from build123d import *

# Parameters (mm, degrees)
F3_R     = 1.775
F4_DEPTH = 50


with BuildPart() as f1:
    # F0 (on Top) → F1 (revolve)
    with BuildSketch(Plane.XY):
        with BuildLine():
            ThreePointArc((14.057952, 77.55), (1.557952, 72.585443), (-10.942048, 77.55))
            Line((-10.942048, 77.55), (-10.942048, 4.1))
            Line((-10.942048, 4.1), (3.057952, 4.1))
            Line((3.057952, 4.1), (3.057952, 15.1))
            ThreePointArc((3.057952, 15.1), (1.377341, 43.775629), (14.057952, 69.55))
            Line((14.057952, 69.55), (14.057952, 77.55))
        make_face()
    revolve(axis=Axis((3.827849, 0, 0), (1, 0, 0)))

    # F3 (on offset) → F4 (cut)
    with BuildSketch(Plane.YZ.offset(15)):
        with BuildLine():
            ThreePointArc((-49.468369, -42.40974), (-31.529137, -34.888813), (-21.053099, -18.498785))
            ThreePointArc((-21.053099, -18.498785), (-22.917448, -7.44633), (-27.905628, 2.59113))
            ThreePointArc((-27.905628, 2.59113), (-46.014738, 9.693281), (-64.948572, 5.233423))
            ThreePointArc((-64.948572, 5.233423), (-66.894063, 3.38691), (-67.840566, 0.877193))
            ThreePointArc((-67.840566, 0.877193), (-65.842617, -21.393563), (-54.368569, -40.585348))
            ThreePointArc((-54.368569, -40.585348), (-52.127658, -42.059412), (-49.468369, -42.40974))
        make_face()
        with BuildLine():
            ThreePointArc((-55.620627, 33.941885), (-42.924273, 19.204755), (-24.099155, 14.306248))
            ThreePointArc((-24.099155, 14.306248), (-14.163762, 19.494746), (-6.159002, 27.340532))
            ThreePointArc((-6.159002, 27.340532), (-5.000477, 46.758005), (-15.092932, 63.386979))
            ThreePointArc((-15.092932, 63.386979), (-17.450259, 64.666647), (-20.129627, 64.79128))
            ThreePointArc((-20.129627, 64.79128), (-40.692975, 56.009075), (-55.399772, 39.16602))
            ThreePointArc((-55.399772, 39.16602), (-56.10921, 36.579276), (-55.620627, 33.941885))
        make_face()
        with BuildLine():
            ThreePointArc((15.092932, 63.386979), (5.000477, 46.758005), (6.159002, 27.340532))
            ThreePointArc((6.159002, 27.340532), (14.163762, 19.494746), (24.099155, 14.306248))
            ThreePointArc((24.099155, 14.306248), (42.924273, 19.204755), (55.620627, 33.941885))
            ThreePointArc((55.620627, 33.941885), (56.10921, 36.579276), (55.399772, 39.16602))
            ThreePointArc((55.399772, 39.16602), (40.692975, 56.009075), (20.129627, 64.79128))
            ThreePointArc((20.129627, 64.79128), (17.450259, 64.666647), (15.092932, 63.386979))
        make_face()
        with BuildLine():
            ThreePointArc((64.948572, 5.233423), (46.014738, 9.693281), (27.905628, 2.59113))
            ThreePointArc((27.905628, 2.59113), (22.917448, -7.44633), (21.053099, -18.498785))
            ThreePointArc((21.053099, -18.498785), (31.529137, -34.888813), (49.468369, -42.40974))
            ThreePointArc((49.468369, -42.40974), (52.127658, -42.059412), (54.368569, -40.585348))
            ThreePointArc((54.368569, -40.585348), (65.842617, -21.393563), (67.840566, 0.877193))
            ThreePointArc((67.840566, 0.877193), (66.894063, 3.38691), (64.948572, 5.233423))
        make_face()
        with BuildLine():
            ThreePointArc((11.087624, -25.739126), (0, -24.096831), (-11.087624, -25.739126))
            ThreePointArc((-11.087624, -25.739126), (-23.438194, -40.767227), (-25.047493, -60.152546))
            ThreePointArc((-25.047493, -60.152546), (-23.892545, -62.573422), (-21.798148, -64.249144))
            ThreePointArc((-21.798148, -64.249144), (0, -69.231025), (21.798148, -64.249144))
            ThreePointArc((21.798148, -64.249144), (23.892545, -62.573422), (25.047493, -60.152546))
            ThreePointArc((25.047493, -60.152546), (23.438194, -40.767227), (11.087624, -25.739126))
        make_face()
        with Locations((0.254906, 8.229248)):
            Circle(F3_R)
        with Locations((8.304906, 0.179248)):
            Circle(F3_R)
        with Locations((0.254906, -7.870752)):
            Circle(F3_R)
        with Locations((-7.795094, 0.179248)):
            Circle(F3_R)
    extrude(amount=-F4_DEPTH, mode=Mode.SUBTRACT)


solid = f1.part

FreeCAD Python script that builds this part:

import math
import FreeCAD as App
import Part
import Sketcher

doc = App.newDocument("Part")
body = doc.addObject("PartDesign::Body", "Body")

# Sketch on XY plane
sketch1 = body.newObject("Sketcher::SketchObject", "Sketch")
sketch1.AttachmentSupport = (doc.getObject("XY_Plane"), [""])
sketch1.MapMode = "FlatFace"
sketch1.addGeometry([
    Part.ArcOfCircle(Part.Circle(App.Vector(1.557952, 90.804272, 0), App.Vector(0, 0, 1), 18.218829), math.radians(-133.322444), math.radians(-46.677556)),  # 0
    Part.LineSegment(App.Vector(-10.942048, 77.55, 0), App.Vector(-10.942048, 4.1, 0)),  # 1
    Part.LineSegment(App.Vector(-10.942048, 4.1, 0), App.Vector(3.057952, 4.1, 0)),  # 2
    Part.LineSegment(App.Vector(3.057952, 4.1, 0), App.Vector(3.057952, 15.1, 0)),  # 3
    Part.ArcOfCircle(Part.Circle(App.Vector(56.578896, 32.623799, 0), App.Vector(0, 0, 1), 56.316738), math.radians(139.028173), math.radians(198.129454)),  # 4
    Part.LineSegment(App.Vector(14.057952, 69.55, 0), App.Vector(14.057952, 77.55, 0)),  # 5
], False)
sketch1.addConstraint([
    Sketcher.Constraint("Coincident", 0, 1, 1, 1),
    Sketcher.Constraint("Coincident", 1, 2, 2, 1),
    Sketcher.Constraint("Coincident", 2, 2, 3, 1),
    Sketcher.Constraint("Coincident", 3, 2, 4, 2),
    Sketcher.Constraint("Coincident", 4, 1, 5, 1),
    Sketcher.Constraint("Coincident", 5, 2, 0, 2),
    Sketcher.Constraint("Vertical", 1),
    Sketcher.Constraint("Horizontal", 2),
    Sketcher.Constraint("Vertical", 3),
    Sketcher.Constraint("Vertical", 5),
    Sketcher.Constraint("Horizontal", 0, 1, 5, 2),
    Sketcher.Constraint("DistanceX", 2, 1, 2, 2, 14.0),
    Sketcher.Constraint("DistanceY", 3, 1, 3, 2, 11.0),
    Sketcher.Constraint("DistanceY", 5, 1, 5, 2, 8.0),
    Sketcher.Constraint("DistanceX", 0, 1, 4, 1, 25.0),
    Sketcher.Constraint("DistanceY", 1, 2, 1, 1, 73.45),
    Sketcher.Constraint("DistanceY", -1, 1, 1, 2, 4.1),
    Sketcher.Constraint("Radius", 0, 18.218829),
    Sketcher.Constraint("Radius", 4, 56.316738),
    Sketcher.Constraint("DistanceX", -1, 1, 2, 2, 3.057952),
])
revolution = body.newObject("PartDesign::Revolution", "Revolution")
revolution.Profile = sketch1
revolution.ReferenceAxis = (sketch1, ["H_Axis"])
revolution.Angle = 360

# Sketch on YZ plane
sketch2 = body.newObject("Sketcher::SketchObject", "Sketch001")
sketch2.AttachmentSupport = (doc.getObject("YZ_Plane"), [""])
sketch2.MapMode = "FlatFace"
sketch2.AttachmentOffset = App.Placement(App.Vector(0, 0, 15), App.Rotation())
sketch2.addGeometry([
    Part.ArcOfCircle(Part.Circle(App.Vector(-52.546714, -9.911971, 0), App.Vector(0, 0, 1), 32.643241), math.radians(-84.588813), math.radians(-15.251132)),  # 0
    Part.ArcOfCircle(Part.Circle(App.Vector(-59.29448, -19.265945, 0), App.Vector(0, 0, 1), 38.249075), math.radians(1.149256), math.radians(34.850745)),  # 1
    Part.ArcOfCircle(Part.Circle(App.Vector(-48.337297, -22.867232, 0), App.Vector(0, 0, 1), 32.643242), math.radians(51.251132), math.radians(120.588812)),  # 2
    Part.ArcOfCircle(Part.Circle(App.Vector(-61.895326, 0.068371, 0), App.Vector(0, 0, 1), 6.000006), math.radians(120.588845), math.radians(172.252743)),  # 3
    Part.ArcOfCircle(Part.Circle(App.Vector(-18.118897, -5.887186, 0), App.Vector(0, 0, 1), 50.179689), math.radians(172.252764), math.radians(223.747237)),  # 4
    Part.ArcOfCircle(Part.Circle(App.Vector(-50.034188, -36.436485, 0), App.Vector(0, 0, 1), 5.999994), math.radians(-136.252791), math.radians(-84.588783)),  # 5
    Part.ArcOfCircle(Part.Circle(App.Vector(-25.664674, 46.911926, 0), App.Vector(0, 0, 1), 32.64324), math.radians(-156.588816), math.radians(-87.251129)),  # 6
    Part.ArcOfCircle(Part.Circle(App.Vector(-36.646015, 50.438913, 0), App.Vector(0, 0, 1), 38.249094), math.radians(-70.850736), math.radians(-37.149264)),  # 7
    Part.ArcOfCircle(Part.Circle(App.Vector(-36.68507, 38.905138, 0), App.Vector(0, 0, 1), 32.643237), math.radians(-20.748874), math.radians(48.588819)),  # 8
    Part.ArcOfCircle(Part.Circle(App.Vector(-19.061683, 58.887083, 0), App.Vector(0, 0, 1), 6.000004), math.radians(48.588835), math.radians(100.252738)),  # 9
    Part.ArcOfCircle(Part.Circle(App.Vector(-11.19809, 15.412848, 0), App.Vector(0, 0, 1), 50.179696), math.radians(100.252766), math.radians(151.747233)),  # 10
    Part.ArcOfCircle(Part.Circle(App.Vector(-50.114565, 36.325847, 0), App.Vector(0, 0, 1), 5.999999), math.radians(151.747235), math.radians(203.411187)),  # 11
    Part.ArcOfCircle(Part.Circle(App.Vector(36.68507, 38.905138, 0), App.Vector(0, 0, 1), 32.643237), math.radians(131.411181), math.radians(200.748874)),  # 12
    Part.ArcOfCircle(Part.Circle(App.Vector(36.646015, 50.438913, 0), App.Vector(0, 0, 1), 38.249094), math.radians(-142.850736), math.radians(-109.149264)),  # 13
    Part.ArcOfCircle(Part.Circle(App.Vector(25.664674, 46.911926, 0), App.Vector(0, 0, 1), 32.64324), math.radians(-92.748871), math.radians(-23.411184)),  # 14
    Part.ArcOfCircle(Part.Circle(App.Vector(50.114565, 36.325847, 0), App.Vector(0, 0, 1), 5.999999), math.radians(-23.411187), math.radians(28.252765)),  # 15
    Part.ArcOfCircle(Part.Circle(App.Vector(11.19809, 15.412848, 0), App.Vector(0, 0, 1), 50.179696), math.radians(28.252767), math.radians(79.747234)),  # 16
    Part.ArcOfCircle(Part.Circle(App.Vector(19.061683, 58.887083, 0), App.Vector(0, 0, 1), 6.000004), math.radians(79.747262), math.radians(131.411165)),  # 17
    Part.ArcOfCircle(Part.Circle(App.Vector(48.337297, -22.867232, 0), App.Vector(0, 0, 1), 32.643242), math.radians(59.411188), math.radians(128.748868)),  # 18
    Part.ArcOfCircle(Part.Circle(App.Vector(59.29448, -19.265945, 0), App.Vector(0, 0, 1), 38.249075), math.radians(145.149255), math.radians(178.850744)),  # 19
    Part.ArcOfCircle(Part.Circle(App.Vector(52.546714, -9.911971, 0), App.Vector(0, 0, 1), 32.643241), math.radians(-164.748868), math.radians(-95.411187)),  # 20
    Part.ArcOfCircle(Part.Circle(App.Vector(50.034188, -36.436485, 0), App.Vector(0, 0, 1), 5.999994), math.radians(-95.411217), math.radians(-43.747209)),  # 21
    Part.ArcOfCircle(Part.Circle(App.Vector(18.118897, -5.887186, 0), App.Vector(0, 0, 1), 50.179689), math.radians(-43.747237), math.radians(7.747236)),  # 22
    Part.ArcOfCircle(Part.Circle(App.Vector(61.895326, 0.068371, 0), App.Vector(0, 0, 1), 6.000006), math.radians(7.747257), math.radians(59.411155)),  # 23
    Part.ArcOfCircle(Part.Circle(App.Vector(0, -62.345909, 0), App.Vector(0, 0, 1), 38.249078), math.radians(73.149257), math.radians(106.850743)),  # 24
    Part.ArcOfCircle(Part.Circle(App.Vector(6.810981, -53.037863, 0), App.Vector(0, 0, 1), 32.643239), math.radians(123.251128), math.radians(192.588816)),  # 25
    Part.ArcOfCircle(Part.Circle(App.Vector(-19.191738, -58.844829, 0), App.Vector(0, 0, 1), 5.999999), math.radians(-167.41118), math.radians(-115.747232)),  # 26
    Part.ArcOfCircle(Part.Circle(App.Vector(0, -19.051344, 0), App.Vector(0, 0, 1), 50.179681), math.radians(-115.747241), math.radians(-64.252759)),  # 27
    Part.ArcOfCircle(Part.Circle(App.Vector(19.191738, -58.844829, 0), App.Vector(0, 0, 1), 5.999999), math.radians(-64.252768), math.radians(-12.58882)),  # 28
    Part.ArcOfCircle(Part.Circle(App.Vector(-6.810981, -53.037863, 0), App.Vector(0, 0, 1), 32.643239), math.radians(-12.588816), math.radians(56.748872)),  # 29
    Part.Circle(App.Vector(0.254906, 8.229248, 0), App.Vector(0, 0, 1), 1.775),  # 30
    Part.Circle(App.Vector(8.304906, 0.179248, 0), App.Vector(0, 0, 1), 1.775),  # 31
    Part.Circle(App.Vector(0.254906, -7.870752, 0), App.Vector(0, 0, 1), 1.775),  # 32
    Part.Circle(App.Vector(-7.795094, 0.179248, 0), App.Vector(0, 0, 1), 1.775),  # 33
], False)
sketch2.addConstraint([
    Sketcher.Constraint("Coincident", 0, 2, 1, 1),
    Sketcher.Constraint("Coincident", 1, 2, 2, 1),
    Sketcher.Constraint("Coincident", 2, 2, 3, 1),
    Sketcher.Constraint("Coincident", 3, 2, 4, 1),
    Sketcher.Constraint("Coincident", 4, 2, 5, 1),
    Sketcher.Constraint("Coincident", 5, 2, 0, 1),
    Sketcher.Constraint("Coincident", 6, 2, 7, 1),
    Sketcher.Constraint("Coincident", 7, 2, 8, 1),
    Sketcher.Constraint("Coincident", 8, 2, 9, 1),
    Sketcher.Constraint("Coincident", 9, 2, 10, 1),
    Sketcher.Constraint("Coincident", 10, 2, 11, 1),
    Sketcher.Constraint("Coincident", 11, 2, 6, 1),
    Sketcher.Constraint("Coincident", 12, 2, 13, 1),
    Sketcher.Constraint("Coincident", 13, 2, 14, 1),
    Sketcher.Constraint("Coincident", 14, 2, 15, 1),
    Sketcher.Constraint("Coincident", 15, 2, 16, 1),
    Sketcher.Constraint("Coincident", 16, 2, 17, 1),
    Sketcher.Constraint("Coincident", 17, 2, 12, 1),
    Sketcher.Constraint("Coincident", 18, 2, 19, 1),
    Sketcher.Constraint("Coincident", 19, 2, 20, 1),
    Sketcher.Constraint("Coincident", 20, 2, 21, 1),
    Sketcher.Constraint("Coincident", 21, 2, 22, 1),
    Sketcher.Constraint("Coincident", 22, 2, 23, 1),
    Sketcher.Constraint("Coincident", 23, 2, 18, 1),
    Sketcher.Constraint("Coincident", 24, 2, 25, 1),
    Sketcher.Constraint("Coincident", 25, 2, 26, 1),
    Sketcher.Constraint("Coincident", 26, 2, 27, 1),
    Sketcher.Constraint("Coincident", 27, 2, 28, 1),
    Sketcher.Constraint("Coincident", 28, 2, 29, 1),
    Sketcher.Constraint("Coincident", 29, 2, 24, 1),
    Sketcher.Constraint("PointOnObject", 24, 3, -2),
    Sketcher.Constraint("PointOnObject", 27, 3, -2),
    Sketcher.Constraint("Radius", 11, 5.999999),
    Sketcher.Constraint("Radius", 15, 5.999999),
    Sketcher.Constraint("Radius", 26, 5.999999),
    Sketcher.Constraint("Radius", 28, 5.999999),
    Sketcher.Constraint("Diameter", 30, 3.55),
    Sketcher.Constraint("Diameter", 31, 3.55),
    Sketcher.Constraint("Diameter", 32, 3.55),
    Sketcher.Constraint("Diameter", 33, 3.55),
    Sketcher.Constraint("Radius", 0, 32.643241),
    Sketcher.Constraint("Radius", 4, 50.179689),
    Sketcher.Constraint("Radius", 6, 32.64324),
    Sketcher.Constraint("Radius", 14, 32.64324),
    Sketcher.Constraint("Radius", 20, 32.643241),
    Sketcher.Constraint("Radius", 22, 50.179689),
    Sketcher.Constraint("Radius", 25, 32.643239),
    Sketcher.Constraint("Radius", 27, 50.179681),
    Sketcher.Constraint("Radius", 29, 32.643239),
    Sketcher.Constraint("DistanceX", 7, 2, -1, 1, 6.159002),
    Sketcher.Constraint("Radius", 1, 38.249075),
    Sketcher.Constraint("Radius", 2, 32.643242),
    Sketcher.Constraint("Radius", 3, 6.000006),
    Sketcher.Constraint("Radius", 5, 5.999994),
    Sketcher.Constraint("Radius", 7, 38.249094),
    Sketcher.Constraint("Radius", 8, 32.643237),
    Sketcher.Constraint("Radius", 9, 6.000004),
    Sketcher.Constraint("Radius", 10, 50.179696),
    Sketcher.Constraint("Radius", 12, 32.643237),
    Sketcher.Constraint("Radius", 13, 38.249094),
    Sketcher.Constraint("Radius", 16, 50.179696),
    Sketcher.Constraint("Radius", 17, 6.000004),
    Sketcher.Constraint("Radius", 18, 32.643242),
    Sketcher.Constraint("Radius", 19, 38.249075),
    Sketcher.Constraint("Radius", 21, 5.999994),
    Sketcher.Constraint("Radius", 23, 6.000006),
    Sketcher.Constraint("Radius", 24, 38.249078),
    Sketcher.Constraint("DistanceX", 0, 2, -1, 1, 21.053099),
    Sketcher.Constraint("DistanceX", -1, 1, 19, 2, 21.053099),
    Sketcher.Constraint("DistanceY", 0, 3, -1, 1, 9.911971),
    Sketcher.Constraint("DistanceX", 1, 3, -1, 1, 59.29448),
    Sketcher.Constraint("DistanceY", 2, 3, -1, 1, 22.867232),
    Sketcher.Constraint("DistanceY", -1, 1, 3, 3, 0.068371),
    Sketcher.Constraint("DistanceX", 8, 3, -1, 1, 36.68507),
    Sketcher.Constraint("DistanceY", -1, 1, 8, 3, 38.905138),
    Sketcher.Constraint("DistanceX", 10, 3, -1, 1, 11.19809),
    Sketcher.Constraint("DistanceY", -1, 1, 10, 3, 15.412848),
    Sketcher.Constraint("DistanceX", -1, 1, 12, 3, 36.68507),
    Sketcher.Constraint("DistanceY", -1, 1, 12, 3, 38.905138),
    Sketcher.Constraint("DistanceX", -1, 1, 16, 3, 11.19809),
    Sketcher.Constraint("DistanceY", -1, 1, 16, 3, 15.412848),
    Sketcher.Constraint("DistanceY", 18, 3, -1, 1, 22.867232),
    Sketcher.Constraint("DistanceX", -1, 1, 19, 3, 59.29448),
    Sketcher.Constraint("DistanceY", 20, 3, -1, 1, 9.911971),
    Sketcher.Constraint("DistanceY", -1, 1, 23, 3, 0.068371),
    Sketcher.Constraint("DistanceY", 24, 3, -1, 1, 62.345909),
    Sketcher.Constraint("DistanceX", -1, 1, 25, 3, 6.810981),
    Sketcher.Constraint("DistanceY", 26, 3, -1, 1, 58.844829),
    Sketcher.Constraint("DistanceY", 28, 3, -1, 1, 58.844829),
    Sketcher.Constraint("DistanceX", 29, 3, -1, 1, 6.810981),
    Sketcher.Constraint("DistanceY", -1, 1, 1, 2, 2.59113),
    Sketcher.Constraint("DistanceX", 4, 2, -1, 1, 54.368569),
    Sketcher.Constraint("DistanceX", 5, 2, -1, 1, 49.468369),
    Sketcher.Constraint("DistanceY", 5, 2, -1, 1, 42.40974),
    Sketcher.Constraint("DistanceY", -1, 1, 6, 2, 14.306248),
    Sketcher.Constraint("DistanceY", -1, 1, 8, 2, 63.386979),
    Sketcher.Constraint("DistanceY", -1, 1, 9, 2, 64.79128),
    Sketcher.Constraint("DistanceY", -1, 1, 10, 2, 39.16602),
    Sketcher.Constraint("DistanceY", -1, 1, 15, 2, 39.16602),
    Sketcher.Constraint("DistanceY", -1, 1, 16, 2, 64.79128),
    Sketcher.Constraint("DistanceY", -1, 1, 17, 2, 63.386979),
    Sketcher.Constraint("DistanceY", -1, 1, 18, 2, 2.59113),
    Sketcher.Constraint("DistanceX", -1, 1, 20, 2, 49.468369),
    Sketcher.Constraint("DistanceY", 20, 2, -1, 1, 42.40974),
    Sketcher.Constraint("DistanceX", -1, 1, 21, 2, 54.368569),
    Sketcher.Constraint("DistanceY", 21, 2, -1, 1, 40.585348),
    Sketcher.Constraint("DistanceX", 26, 2, -1, 1, 21.798148),
    Sketcher.Constraint("DistanceX", 4, 3, -1, 1, 18.118897),
    Sketcher.Constraint("DistanceX", 6, 3, -1, 1, 25.664674),
    Sketcher.Constraint("DistanceY", -1, 1, 6, 3, 46.911926),
    Sketcher.Constraint("DistanceX", -1, 1, 13, 3, 36.646015),
    Sketcher.Constraint("DistanceY", -1, 1, 13, 3, 50.438913),
    Sketcher.Constraint("DistanceX", -1, 1, 14, 3, 25.664674),
    Sketcher.Constraint("DistanceY", -1, 1, 14, 3, 46.911926),
    Sketcher.Constraint("DistanceY", 25, 3, -1, 1, 53.037863),
    Sketcher.Constraint("DistanceX", -1, 1, 30, 3, 0.254906),
    Sketcher.Constraint("DistanceY", -1, 1, 30, 3, 8.229248),
    Sketcher.Constraint("DistanceX", -1, 1, 31, 3, 8.304906),
    Sketcher.Constraint("DistanceY", -1, 1, 31, 3, 0.179248),
    Sketcher.Constraint("DistanceX", -1, 1, 32, 3, 0.254906),
    Sketcher.Constraint("DistanceY", 32, 3, -1, 1, 7.870752),
    Sketcher.Constraint("DistanceX", 33, 3, -1, 1, 7.795094),
    Sketcher.Constraint("DistanceY", -1, 1, 33, 3, 0.179248),
    Sketcher.Constraint("DistanceX", 2, 2, -1, 1, 64.948572),
    Sketcher.Constraint("DistanceX", 3, 2, -1, 1, 67.840566),
    Sketcher.Constraint("DistanceX", 11, 2, -1, 1, 55.620627),
    Sketcher.Constraint("DistanceX", -1, 1, 14, 2, 55.620627),
    Sketcher.Constraint("DistanceX", -1, 1, 22, 2, 67.840566),
    Sketcher.Constraint("DistanceX", -1, 1, 23, 2, 64.948572),
    Sketcher.Constraint("DistanceX", 25, 2, -1, 1, 25.047493),
    Sketcher.Constraint("DistanceX", -1, 1, 27, 2, 21.798148),
    Sketcher.Constraint("DistanceX", -1, 1, 28, 2, 25.047493),
])
pocket1 = body.newObject("PartDesign::Pocket", "Pocket")
pocket1.Profile = sketch2
pocket1.Length = 50

doc.recompute()
